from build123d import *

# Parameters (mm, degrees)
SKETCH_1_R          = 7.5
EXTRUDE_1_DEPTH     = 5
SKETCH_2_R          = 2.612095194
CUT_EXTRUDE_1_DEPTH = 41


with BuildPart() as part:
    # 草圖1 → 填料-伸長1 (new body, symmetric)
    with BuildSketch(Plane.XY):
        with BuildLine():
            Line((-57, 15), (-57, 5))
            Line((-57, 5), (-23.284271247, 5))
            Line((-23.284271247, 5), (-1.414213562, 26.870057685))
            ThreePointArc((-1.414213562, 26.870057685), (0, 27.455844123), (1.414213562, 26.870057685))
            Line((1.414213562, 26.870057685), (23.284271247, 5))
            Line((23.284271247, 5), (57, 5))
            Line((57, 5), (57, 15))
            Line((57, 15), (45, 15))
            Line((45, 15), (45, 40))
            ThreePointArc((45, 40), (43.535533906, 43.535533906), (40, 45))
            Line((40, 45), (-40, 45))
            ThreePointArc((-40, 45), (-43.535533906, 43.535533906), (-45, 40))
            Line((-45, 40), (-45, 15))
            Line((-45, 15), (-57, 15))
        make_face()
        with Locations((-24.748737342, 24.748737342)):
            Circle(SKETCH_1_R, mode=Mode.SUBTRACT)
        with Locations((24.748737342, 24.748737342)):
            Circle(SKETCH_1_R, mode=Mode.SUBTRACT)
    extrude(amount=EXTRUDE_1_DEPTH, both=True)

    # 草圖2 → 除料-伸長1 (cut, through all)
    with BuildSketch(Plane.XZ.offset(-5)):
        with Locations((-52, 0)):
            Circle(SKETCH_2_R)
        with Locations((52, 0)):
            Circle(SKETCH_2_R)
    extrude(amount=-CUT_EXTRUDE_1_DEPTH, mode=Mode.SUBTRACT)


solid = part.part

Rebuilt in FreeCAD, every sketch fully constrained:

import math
import FreeCAD as App
import Part
import Sketcher

V = App.Vector
Q = App.Units.Quantity

doc = App.newDocument("Part")
body = doc.addObject("PartDesign::Body", "Body")

# Sketch on XY plane
sketch1 = doc.addObject("Sketcher::SketchObject", "Sketch")
body.addObject(sketch1)
sketch1.AttachmentSupport = (doc.XY_Plane, [""])
sketch1.MapMode = "FlatFace"
sketch1.addGeometry([
    Part.LineSegment(V(-57, 15, 0), V(-57, 5, 0)),  # 0
    Part.LineSegment(V(-57, 5, 0), V(-23.3, 5, 0)),  # 1
    Part.LineSegment(V(-23.3, 5, 0), V(-1.4, 26.9, 0)),  # 2
    Part.ArcOfCircle(Part.Circle(V(0, 25.5, 0), V(0, 0, 1), 2), math.radians(45), math.radians(135)),  # 3
    Part.LineSegment(V(1.4, 26.9, 0), V(23.3, 5, 0)),  # 4
    Part.LineSegment(V(23.3, 5, 0), V(57, 5, 0)),  # 5
    Part.LineSegment(V(57, 5, 0), V(57, 15, 0)),  # 6
    Part.LineSegment(V(57, 15, 0), V(45, 15, 0)),  # 7
    Part.LineSegment(V(45, 15, 0), V(45, 40, 0)),  # 8
    Part.ArcOfCircle(Part.Circle(V(40, 40, 0), V(0, 0, 1), 5), math.radians(0), math.radians(90)),  # 9
    Part.LineSegment(V(40, 45, 0), V(-40, 45, 0)),  # 10
    Part.ArcOfCircle(Part.Circle(V(-40, 40, 0), V(0, 0, 1), 5), math.radians(90), math.radians(180)),  # 11
    Part.LineSegment(V(-45, 40, 0), V(-45, 15, 0)),  # 12
    Part.LineSegment(V(-45, 15, 0), V(-57, 15, 0)),  # 13
    Part.Circle(V(-24.7, 24.7, 0), V(0, 0, 1), 7.5),  # 14
    Part.Circle(V(24.7, 24.7, 0), V(0, 0, 1), 7.5),  # 15
], False)
sketch1.addConstraint([
    Sketcher.Constraint("Coincident", 0, 2, 1, 1),
    Sketcher.Constraint("Coincident", 1, 2, 2, 1),
    Sketcher.Constraint("Tangent", 2, 2, 3, 2),
    Sketcher.Constraint("Tangent", 3, 1, 4, 1),
    Sketcher.Constraint("Coincident", 4, 2, 5, 1),
    Sketcher.Constraint("Coincident", 5, 2, 6, 1),
    Sketcher.Constraint("Coincident", 6, 2, 7, 1),
    Sketcher.Constraint("Coincident", 7, 2, 8, 1),
    Sketcher.Constraint("Tangent", 8, 2, 9, 1),
    Sketcher.Constraint("Tangent", 9, 2, 10, 1),
    Sketcher.Constraint("Tangent", 10, 2, 11, 1),
    Sketcher.Constraint("Tangent", 11, 2, 12, 1),
    Sketcher.Constraint("Coincident", 12, 2, 13, 1),
    Sketcher.Constraint("Coincident", 13, 2, 0, 1),
    Sketcher.Constraint("Vertical", 0),
    Sketcher.Constraint("Horizontal", 1),
    Sketcher.Constraint("Horizontal", 5),
    Sketcher.Constraint("Vertical", 6),
    Sketcher.Constraint("Horizontal", 7),
    Sketcher.Constraint("Vertical", 8),
    Sketcher.Constraint("Horizontal", 10),
    Sketcher.Constraint("Vertical", 12),
    Sketcher.Constraint("Horizontal", 13),
    Sketcher.Constraint("Equal", 9, 11),
    Sketcher.Constraint("Equal", 14, 15),
    Sketcher.Constraint("Symmetric", 14, 3, 15, 3, -2),
    Sketcher.Constraint("Symmetric", 2, 2, 3, 1, -2),
    Sketcher.Constraint("Symmetric", 0, 2, 5, 2, -2),
    Sketcher.Constraint("Symmetric", 7, 2, 12, 2, -2),
    Sketcher.Constraint("Perpendicular", 2, 4),
    Sketcher.Constraint("Diameter", 14, Q("15 mm")),
    Sketcher.Constraint("Radius", 3, Q("2 mm")),
    Sketcher.Constraint("Radius", 9, Q("5 mm")),
    Sketcher.Constraint("DistanceX", 7, 2, 7, 1, Q("12 mm")),
    Sketcher.Constraint("DistanceX", 10, 2, 10, 1, Q("80 mm")),
    Sketcher.Constraint("DistanceY", 0, 2, 0, 1, Q("10 mm")),
    Sketcher.Constraint("DistanceY", 8, 1, 8, 2, Q("25 mm")),
    Sketcher.Constraint("DistanceY", -1, 1, 9, 3, Q("40 mm")),
    Sketcher.Constraint("DistanceX", 1, 1, 1, 2, Q("33.715729 mm")),
    Sketcher.Constraint("DistanceX", 1, 2, 15, 3, Q("48.033009 mm")),
    Sketcher.Constraint("DistanceY", 14, 3, 2, 2, Q("2.12132 mm")),
])
pad1 = doc.addObject("PartDesign::Pad", "Pad")
body.addObject(pad1)
pad1.Profile = sketch1
pad1.Length = 10
pad1.Midplane = True

# Sketch on XZ plane
sketch2 = doc.addObject("Sketcher::SketchObject", "Sketch001")
body.addObject(sketch2)
sketch2.AttachmentSupport = (doc.XZ_Plane, [""])
sketch2.MapMode = "FlatFace"
sketch2.AttachmentOffset = App.Placement(V(0, 0, -5), App.Rotation())
sketch2.addGeometry([
    Part.Circle(V(-52, 0, 0), V(0, 0, 1), 2.6),
    Part.Circle(V(52, 0, 0), V(0, 0, 1), 2.6),
], False)
sketch2.addConstraint([
    Sketcher.Constraint("Equal", 0, 1),
    Sketcher.Constraint("Symmetric", 0, 3, 1, 3, -1, 1),
    Sketcher.Constraint("PointOnObject", 0, 3, -1),
    Sketcher.Constraint("DistanceX", 0, 3, -1, 1, Q("52 mm")),
    Sketcher.Constraint("Diameter", 0, Q("5.22419 mm")),
])
pocket1 = doc.addObject("PartDesign::Pocket", "Pocket")
body.addObject(pocket1)
pocket1.Profile = sketch2
pocket1.Type = "ThroughAll"

doc.recompute()
